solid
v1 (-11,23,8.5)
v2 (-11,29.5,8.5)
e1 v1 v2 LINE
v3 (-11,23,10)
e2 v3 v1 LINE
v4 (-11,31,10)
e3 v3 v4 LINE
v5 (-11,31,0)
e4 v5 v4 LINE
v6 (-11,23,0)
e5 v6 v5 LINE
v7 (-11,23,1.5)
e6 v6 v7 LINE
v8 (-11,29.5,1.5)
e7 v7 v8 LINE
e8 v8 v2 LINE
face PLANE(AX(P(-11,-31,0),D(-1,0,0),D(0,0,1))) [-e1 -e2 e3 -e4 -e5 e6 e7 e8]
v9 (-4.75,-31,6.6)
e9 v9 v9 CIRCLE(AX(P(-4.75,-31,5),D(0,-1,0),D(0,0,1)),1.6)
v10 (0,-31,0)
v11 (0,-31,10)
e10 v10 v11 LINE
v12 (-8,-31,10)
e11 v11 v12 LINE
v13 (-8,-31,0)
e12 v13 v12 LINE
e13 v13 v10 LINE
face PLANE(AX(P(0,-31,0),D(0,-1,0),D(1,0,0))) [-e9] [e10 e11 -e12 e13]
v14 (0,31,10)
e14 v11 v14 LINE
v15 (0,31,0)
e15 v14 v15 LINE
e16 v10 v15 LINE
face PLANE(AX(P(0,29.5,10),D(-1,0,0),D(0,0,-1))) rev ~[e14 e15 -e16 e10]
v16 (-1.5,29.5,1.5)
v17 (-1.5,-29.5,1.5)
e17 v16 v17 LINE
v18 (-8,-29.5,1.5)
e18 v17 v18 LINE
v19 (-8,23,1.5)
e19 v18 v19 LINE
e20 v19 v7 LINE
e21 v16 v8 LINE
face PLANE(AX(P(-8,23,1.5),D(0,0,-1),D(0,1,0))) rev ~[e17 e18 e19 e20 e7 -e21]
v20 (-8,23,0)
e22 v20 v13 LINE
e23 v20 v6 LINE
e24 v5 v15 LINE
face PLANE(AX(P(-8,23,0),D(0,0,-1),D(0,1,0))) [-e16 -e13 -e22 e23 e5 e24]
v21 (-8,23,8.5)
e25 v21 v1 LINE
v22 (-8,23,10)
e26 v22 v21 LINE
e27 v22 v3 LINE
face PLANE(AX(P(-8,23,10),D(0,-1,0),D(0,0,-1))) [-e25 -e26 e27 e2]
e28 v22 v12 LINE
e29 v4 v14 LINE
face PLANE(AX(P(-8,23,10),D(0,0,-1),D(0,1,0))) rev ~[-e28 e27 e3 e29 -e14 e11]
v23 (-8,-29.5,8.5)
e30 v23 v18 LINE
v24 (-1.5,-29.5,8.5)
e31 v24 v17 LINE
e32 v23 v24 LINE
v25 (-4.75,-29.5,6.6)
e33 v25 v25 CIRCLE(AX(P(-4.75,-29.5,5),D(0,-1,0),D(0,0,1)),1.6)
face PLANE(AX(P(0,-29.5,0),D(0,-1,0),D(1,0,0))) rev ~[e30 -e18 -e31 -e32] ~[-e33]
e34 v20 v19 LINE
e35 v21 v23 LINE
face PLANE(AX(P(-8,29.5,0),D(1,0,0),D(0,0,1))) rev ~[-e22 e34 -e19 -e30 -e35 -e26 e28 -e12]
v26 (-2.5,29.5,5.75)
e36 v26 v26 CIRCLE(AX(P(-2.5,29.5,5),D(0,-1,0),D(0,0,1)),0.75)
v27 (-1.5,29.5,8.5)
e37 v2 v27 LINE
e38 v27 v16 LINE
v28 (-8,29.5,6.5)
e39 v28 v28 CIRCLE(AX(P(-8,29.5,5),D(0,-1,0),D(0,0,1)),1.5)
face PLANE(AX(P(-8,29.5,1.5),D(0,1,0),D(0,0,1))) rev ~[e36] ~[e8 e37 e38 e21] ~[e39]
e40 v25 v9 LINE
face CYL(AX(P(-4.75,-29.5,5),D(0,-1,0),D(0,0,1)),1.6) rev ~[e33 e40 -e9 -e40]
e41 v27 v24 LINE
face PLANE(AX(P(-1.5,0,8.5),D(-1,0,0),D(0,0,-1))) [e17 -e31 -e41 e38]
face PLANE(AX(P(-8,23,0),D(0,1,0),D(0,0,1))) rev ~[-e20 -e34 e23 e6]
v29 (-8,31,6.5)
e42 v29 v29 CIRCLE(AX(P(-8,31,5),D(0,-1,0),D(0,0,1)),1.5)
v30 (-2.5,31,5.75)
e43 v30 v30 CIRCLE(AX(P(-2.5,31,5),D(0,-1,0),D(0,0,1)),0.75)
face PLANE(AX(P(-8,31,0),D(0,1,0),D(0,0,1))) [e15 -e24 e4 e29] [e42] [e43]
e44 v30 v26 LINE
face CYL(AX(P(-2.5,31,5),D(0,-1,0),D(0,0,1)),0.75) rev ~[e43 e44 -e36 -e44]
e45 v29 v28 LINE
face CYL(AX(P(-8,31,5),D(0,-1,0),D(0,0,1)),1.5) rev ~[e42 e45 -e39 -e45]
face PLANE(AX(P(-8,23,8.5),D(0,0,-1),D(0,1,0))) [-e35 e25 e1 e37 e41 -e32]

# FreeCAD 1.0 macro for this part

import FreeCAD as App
import Part
import Sketcher
Q = App.Units.Quantity


def add_polygon(sketch, points):
    """Adds a closed chain of lines whose ends are joined by coincident constraints."""
    first, n = sketch.GeometryCount, len(points)
    for a, b in zip(points, points[1:] + points[:1]):
        sketch.addGeometry(Part.LineSegment(App.Vector(*a, 0), App.Vector(*b, 0)), False)
    for i in range(n):
        sketch.addConstraint(Sketcher.Constraint("Coincident", first + i, 2, first + (i + 1) % n, 1))

doc = App.newDocument("Part")
body = doc.addObject("PartDesign::Body", "Body")

# Sketch on XZ plane
sketch1 = body.newObject("Sketcher::SketchObject", "Sketch")
sketch1.AttachmentSupport = (doc.getObject("XZ_Plane"), [""])
sketch1.MapMode = "FlatFace"
add_polygon(sketch1, [(0, 10), (0, 0), (-8, 0), (-8, 1.5), (-1.5, 1.5), (-1.5, 8.5), (-8, 8.5), (-8, 10)])  # lines 0-7
sketch1.addConstraint([
    Sketcher.Constraint("Vertical", 0),
    Sketcher.Constraint("Horizontal", 1),
    Sketcher.Constraint("Vertical", 2),
    Sketcher.Constraint("Horizontal", 3),
    Sketcher.Constraint("Vertical", 4),
    Sketcher.Constraint("Horizontal", 5),
    Sketcher.Constraint("Vertical", 6),
    Sketcher.Constraint("Horizontal", 7),
    Sketcher.Constraint("Coincident", 0, 2, -1, 1),
    Sketcher.Constraint("Vertical", 2, 2, 5, 2),
    Sketcher.Constraint("Equal", 2, 6),
    Sketcher.Constraint("DistanceX", 1, 2, 1, 1, Q("8 mm")),
    Sketcher.Constraint("DistanceY", 0, 2, 0, 1, Q("10 mm")),
    Sketcher.Constraint("DistanceY", 4, 1, 4, 2, Q("7 mm")),
    Sketcher.Constraint("DistanceX", 3, 1, 3, 2, Q("6.5 mm")),
])
pad1 = body.newObject("PartDesign::Pad", "Pad")
pad1.Profile = sketch1
pad1.Length = 59
pad1.Midplane = True

# Sketch on XZ plane
sketch2 = body.newObject("Sketcher::SketchObject", "Sketch001")
sketch2.AttachmentSupport = (doc.getObject("XZ_Plane"), [""])
sketch2.MapMode = "FlatFace"
sketch2.AttachmentOffset = App.Placement(App.Vector(0, 0, 29.5), App.Rotation())
add_polygon(sketch2, [(-8, 10), (-8, 0), (0, 0), (0, 10)])  # lines 0-3
sketch2.addConstraint([
    Sketcher.Constraint("Vertical", 0),
    Sketcher.Constraint("Horizontal", 1),
    Sketcher.Constraint("Vertical", 2),
    Sketcher.Constraint("Horizontal", 3),
    Sketcher.Constraint("Coincident", 1, 2, -1, 1),
    Sketcher.Constraint("DistanceX", 1, 1, 1, 2, Q("8 mm")),
    Sketcher.Constraint("DistanceY", 0, 2, 0, 1, Q("10 mm")),
])
pad2 = body.newObject("PartDesign::Pad", "Pad001")
pad2.Profile = sketch2
pad2.Length = 1.5

# Sketch on XZ plane
sketch3 = body.newObject("Sketcher::SketchObject", "Sketch002")
sketch3.AttachmentSupport = (doc.getObject("XZ_Plane"), [""])
sketch3.MapMode = "FlatFace"
sketch3.AttachmentOffset = App.Placement(App.Vector(0, 0, 29.5), App.Rotation())
sketch3.addGeometry(Part.Circle(App.Vector(-4.8, 5, 0), App.Vector(0, 0, 1), 1.6), False)
sketch3.addConstraint([
    Sketcher.Constraint("Diameter", 0, Q("3.2 mm")),
    Sketcher.Constraint("DistanceY", -1, 1, 0, 3, Q("5 mm")),
    Sketcher.Constraint("DistanceX", 0, 3, -1, 1, Q("4.75 mm")),
])
doc.recompute()
hole = body.newObject("PartDesign::Hole", "Hole")
hole.Profile = sketch3
hole.ThreadType = "None"
hole.Diameter = 3.2
hole.DepthType = "ThroughAll"
hole.Reversed = True

# Sketch on XZ plane
sketch4 = body.newObject("Sketcher::SketchObject", "Sketch003")
sketch4.AttachmentSupport = (doc.getObject("XZ_Plane"), [""])
sketch4.MapMode = "FlatFace"
sketch4.AttachmentOffset = App.Placement(App.Vector(0, 0, -29.5), App.Rotation())
add_polygon(sketch4, [(-8, 10), (0, 10), (0, 0), (-8, 0)])  # lines 0-3
sketch4.addConstraint([
    Sketcher.Constraint("Horizontal", 0),
    Sketcher.Constraint("Vertical", 1),
    Sketcher.Constraint("Horizontal", 2),
    Sketcher.Constraint("Vertical", 3),
    Sketcher.Constraint("Coincident", 1, 2, -1, 1),
    Sketcher.Constraint("DistanceX", 0, 1, 0, 2, Q("8 mm")),
    Sketcher.Constraint("DistanceY", 1, 2, 1, 1, Q("10 mm")),
])
pad3 = body.newObject("PartDesign::Pad", "Pad002")
pad3.Profile = sketch4
pad3.Length = 1.5
pad3.Reversed = True

# Sketch on YZ plane
sketch5 = body.newObject("Sketcher::SketchObject", "Sketch004")
sketch5.AttachmentSupport = (doc.getObject("YZ_Plane"), [""])
sketch5.MapMode = "FlatFace"
sketch5.AttachmentOffset = App.Placement(App.Vector(0, 0, -8), App.Rotation())
add_polygon(sketch5, [(31, 0), (23, 0), (23, 1.5), (29.5, 1.5), (29.5, 8.5), (23, 8.5), (23, 10), (31, 10)])  # lines 0-7
sketch5.addConstraint([
    Sketcher.Constraint("Horizontal", 0),
    Sketcher.Constraint("Vertical", 1),
    Sketcher.Constraint("Horizontal", 2),
    Sketcher.Constraint("Vertical", 3),
    Sketcher.Constraint("Horizontal", 4),
    Sketcher.Constraint("Vertical", 5),
    Sketcher.Constraint("Horizontal", 6),
    Sketcher.Constraint("Vertical", 7),
    Sketcher.Constraint("PointOnObject", 0, 2, -1),
    Sketcher.Constraint("Vertical", 1, 2, 4, 2),
    Sketcher.Constraint("Equal", 1, 5),
    Sketcher.Constraint("DistanceX", 0, 2, 0, 1, Q("8 mm")),
    Sketcher.Constraint("DistanceY", 3, 1, 3, 2, Q("7 mm")),
    Sketcher.Constraint("DistanceY", 7, 2, 7, 1, Q("10 mm")),
    Sketcher.Constraint("DistanceX", 2, 1, 2, 2, Q("6.5 mm")),
    Sketcher.Constraint("DistanceX", -1, 1, 0, 2, Q("23 mm")),
])
pad4 = body.newObject("PartDesign::Pad", "Pad003")
pad4.Profile = sketch5
pad4.Length = 3
pad4.Reversed = True

# Sketch on XZ plane
sketch6 = body.newObject("Sketcher::SketchObject", "Sketch005")
sketch6.AttachmentSupport = (doc.getObject("XZ_Plane"), [""])
sketch6.MapMode = "FlatFace"
sketch6.AttachmentOffset = App.Placement(App.Vector(0, 0, -31), App.Rotation())
sketch6.addGeometry(Part.Circle(App.Vector(-2.5, 5, 0), App.Vector(0, 0, 1), 0.8), False)
sketch6.addConstraint([
    Sketcher.Constraint("Diameter", 0, Q("1.5 mm")),
    Sketcher.Constraint("DistanceY", -1, 1, 0, 3, Q("5 mm")),
    Sketcher.Constraint("DistanceX", 0, 3, -1, 1, Q("2.5 mm")),
])
doc.recompute()
hole2 = body.newObject("PartDesign::Hole", "Hole001")
hole2.Profile = sketch6
hole2.ThreadType = "None"
hole2.Diameter = 1.5
hole2.DepthType = "Dimension"
hole2.Depth = 1.5
hole2.DrillPoint = "Flat"
hole2.Reversed = True

# Sketch on XZ plane
sketch7 = body.newObject("Sketcher::SketchObject", "Sketch006")
sketch7.AttachmentSupport = (doc.getObject("XZ_Plane"), [""])
sketch7.MapMode = "FlatFace"
sketch7.AttachmentOffset = App.Placement(App.Vector(0, 0, -31), App.Rotation())
sketch7.addGeometry(Part.Circle(App.Vector(-8, 5, 0), App.Vector(0, 0, 1), 1.5), False)
sketch7.addConstraint([
    Sketcher.Constraint("Diameter", 0, Q("3 mm")),
    Sketcher.Constraint("DistanceX", 0, 3, -1, 1, Q("8 mm")),
    Sketcher.Constraint("DistanceY", -1, 1, 0, 3, Q("5 mm")),
])
doc.recompute()
hole3 = body.newObject("PartDesign::Hole", "Hole002")
hole3.Profile = sketch7
hole3.ThreadType = "None"
hole3.Diameter = 3
hole3.DepthType = "Dimension"
hole3.Depth = 1.5
hole3.DrillPoint = "Flat"
hole3.Reversed = True

doc.recompute()
